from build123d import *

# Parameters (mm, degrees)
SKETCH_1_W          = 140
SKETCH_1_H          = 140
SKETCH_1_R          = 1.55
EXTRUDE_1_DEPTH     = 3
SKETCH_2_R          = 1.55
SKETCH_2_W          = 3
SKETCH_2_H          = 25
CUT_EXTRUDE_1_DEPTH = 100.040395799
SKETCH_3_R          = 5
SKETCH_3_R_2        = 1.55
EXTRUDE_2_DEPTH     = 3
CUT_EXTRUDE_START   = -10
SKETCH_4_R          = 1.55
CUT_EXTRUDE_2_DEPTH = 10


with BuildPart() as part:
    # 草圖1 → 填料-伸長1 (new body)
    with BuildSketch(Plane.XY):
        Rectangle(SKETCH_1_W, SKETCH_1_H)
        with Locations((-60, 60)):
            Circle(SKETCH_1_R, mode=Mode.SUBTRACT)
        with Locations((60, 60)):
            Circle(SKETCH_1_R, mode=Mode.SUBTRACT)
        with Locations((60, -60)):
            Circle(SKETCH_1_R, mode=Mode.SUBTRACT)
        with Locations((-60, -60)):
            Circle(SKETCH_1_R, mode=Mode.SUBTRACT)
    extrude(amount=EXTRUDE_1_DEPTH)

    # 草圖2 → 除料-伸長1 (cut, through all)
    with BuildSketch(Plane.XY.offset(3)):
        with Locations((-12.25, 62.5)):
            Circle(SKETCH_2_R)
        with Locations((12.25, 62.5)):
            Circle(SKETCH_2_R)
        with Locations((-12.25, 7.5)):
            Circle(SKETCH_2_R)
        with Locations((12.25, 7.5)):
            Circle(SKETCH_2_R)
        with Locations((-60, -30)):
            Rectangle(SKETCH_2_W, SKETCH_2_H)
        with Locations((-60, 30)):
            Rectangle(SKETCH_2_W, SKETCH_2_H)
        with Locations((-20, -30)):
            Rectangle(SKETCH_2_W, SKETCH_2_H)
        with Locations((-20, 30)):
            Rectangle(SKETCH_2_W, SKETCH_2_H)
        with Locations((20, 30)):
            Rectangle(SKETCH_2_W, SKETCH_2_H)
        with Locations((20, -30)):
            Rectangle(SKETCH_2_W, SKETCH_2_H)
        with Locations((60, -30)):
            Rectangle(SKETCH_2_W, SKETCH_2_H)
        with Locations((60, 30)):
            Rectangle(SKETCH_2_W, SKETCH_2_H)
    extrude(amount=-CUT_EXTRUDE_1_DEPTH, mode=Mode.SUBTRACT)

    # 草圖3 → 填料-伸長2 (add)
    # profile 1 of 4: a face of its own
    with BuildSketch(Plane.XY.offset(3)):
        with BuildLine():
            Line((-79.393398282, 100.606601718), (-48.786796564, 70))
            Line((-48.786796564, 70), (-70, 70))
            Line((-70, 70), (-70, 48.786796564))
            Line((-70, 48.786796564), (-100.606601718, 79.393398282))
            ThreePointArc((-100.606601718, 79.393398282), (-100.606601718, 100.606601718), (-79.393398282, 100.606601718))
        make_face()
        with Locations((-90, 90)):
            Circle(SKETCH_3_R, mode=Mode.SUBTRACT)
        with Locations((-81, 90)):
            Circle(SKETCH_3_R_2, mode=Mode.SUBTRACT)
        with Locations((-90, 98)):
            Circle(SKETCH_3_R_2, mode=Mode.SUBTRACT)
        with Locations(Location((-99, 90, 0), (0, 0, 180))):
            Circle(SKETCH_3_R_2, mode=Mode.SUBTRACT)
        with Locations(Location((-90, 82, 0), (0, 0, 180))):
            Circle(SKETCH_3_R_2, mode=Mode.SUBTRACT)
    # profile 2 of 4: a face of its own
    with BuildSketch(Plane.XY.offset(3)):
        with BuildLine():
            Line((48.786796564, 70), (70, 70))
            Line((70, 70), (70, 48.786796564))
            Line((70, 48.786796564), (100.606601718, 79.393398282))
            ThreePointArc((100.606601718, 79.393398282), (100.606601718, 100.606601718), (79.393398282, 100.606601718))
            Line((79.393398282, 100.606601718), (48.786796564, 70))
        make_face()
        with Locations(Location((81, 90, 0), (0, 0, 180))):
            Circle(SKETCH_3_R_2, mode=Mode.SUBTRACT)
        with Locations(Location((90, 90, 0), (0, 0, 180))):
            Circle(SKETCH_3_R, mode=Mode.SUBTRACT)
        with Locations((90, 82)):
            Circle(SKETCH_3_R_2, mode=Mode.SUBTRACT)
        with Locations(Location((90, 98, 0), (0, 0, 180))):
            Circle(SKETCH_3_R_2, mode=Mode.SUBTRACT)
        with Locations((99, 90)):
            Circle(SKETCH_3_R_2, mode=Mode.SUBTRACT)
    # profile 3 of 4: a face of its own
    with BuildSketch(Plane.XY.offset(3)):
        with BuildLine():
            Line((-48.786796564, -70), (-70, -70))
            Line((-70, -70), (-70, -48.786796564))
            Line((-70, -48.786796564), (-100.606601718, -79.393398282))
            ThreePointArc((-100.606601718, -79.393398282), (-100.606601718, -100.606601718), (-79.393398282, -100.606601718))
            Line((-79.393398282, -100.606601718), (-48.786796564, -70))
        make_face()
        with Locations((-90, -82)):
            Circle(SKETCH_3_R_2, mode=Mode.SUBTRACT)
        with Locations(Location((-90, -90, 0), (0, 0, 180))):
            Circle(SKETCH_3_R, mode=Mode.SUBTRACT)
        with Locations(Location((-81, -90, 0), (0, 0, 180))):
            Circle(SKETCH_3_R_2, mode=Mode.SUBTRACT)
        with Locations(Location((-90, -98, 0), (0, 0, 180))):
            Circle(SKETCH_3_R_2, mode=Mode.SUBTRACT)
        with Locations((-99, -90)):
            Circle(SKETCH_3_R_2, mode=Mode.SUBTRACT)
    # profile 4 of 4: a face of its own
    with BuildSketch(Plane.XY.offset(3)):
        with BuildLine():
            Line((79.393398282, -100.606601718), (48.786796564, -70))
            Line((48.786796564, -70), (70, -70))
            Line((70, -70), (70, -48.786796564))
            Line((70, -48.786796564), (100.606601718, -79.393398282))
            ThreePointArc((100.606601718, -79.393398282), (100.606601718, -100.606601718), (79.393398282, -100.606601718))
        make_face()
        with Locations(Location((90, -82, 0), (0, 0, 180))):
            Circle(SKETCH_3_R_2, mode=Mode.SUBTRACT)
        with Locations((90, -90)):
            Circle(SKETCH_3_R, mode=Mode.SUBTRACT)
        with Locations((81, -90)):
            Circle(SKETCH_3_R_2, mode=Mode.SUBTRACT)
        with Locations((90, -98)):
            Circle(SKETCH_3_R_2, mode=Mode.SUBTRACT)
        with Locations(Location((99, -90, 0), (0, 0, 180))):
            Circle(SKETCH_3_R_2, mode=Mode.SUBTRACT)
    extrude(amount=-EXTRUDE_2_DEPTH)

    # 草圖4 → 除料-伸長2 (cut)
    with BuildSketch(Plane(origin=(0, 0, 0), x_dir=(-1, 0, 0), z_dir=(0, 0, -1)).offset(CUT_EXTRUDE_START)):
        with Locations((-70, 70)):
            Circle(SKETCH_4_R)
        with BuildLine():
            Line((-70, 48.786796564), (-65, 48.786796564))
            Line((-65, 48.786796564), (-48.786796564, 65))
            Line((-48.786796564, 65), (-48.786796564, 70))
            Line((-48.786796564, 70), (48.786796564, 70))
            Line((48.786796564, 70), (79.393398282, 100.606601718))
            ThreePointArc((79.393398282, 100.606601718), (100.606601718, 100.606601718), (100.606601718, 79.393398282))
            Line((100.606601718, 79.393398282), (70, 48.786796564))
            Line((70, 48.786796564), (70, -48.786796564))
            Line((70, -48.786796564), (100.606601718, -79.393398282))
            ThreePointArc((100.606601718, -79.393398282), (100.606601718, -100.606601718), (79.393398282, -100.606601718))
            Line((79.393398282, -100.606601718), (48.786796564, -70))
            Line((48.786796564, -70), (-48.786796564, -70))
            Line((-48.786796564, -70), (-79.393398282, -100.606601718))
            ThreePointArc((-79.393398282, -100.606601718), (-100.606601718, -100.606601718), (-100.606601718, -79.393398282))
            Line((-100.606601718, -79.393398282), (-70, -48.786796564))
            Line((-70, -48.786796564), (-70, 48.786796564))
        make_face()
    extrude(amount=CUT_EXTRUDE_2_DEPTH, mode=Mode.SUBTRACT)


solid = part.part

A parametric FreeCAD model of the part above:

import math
import FreeCAD as App
import Part
import Sketcher

V = App.Vector

doc = App.newDocument("Part")
body = doc.addObject("PartDesign::Body", "Body")

# Sketch on XY plane
sketch1 = body.newObject("Sketcher::SketchObject", "Sketch")
sketch1.AttachmentSupport = (doc.getObject("XY_Plane"), [""])
sketch1.MapMode = "FlatFace"
sketch1.addGeometry(Part.LineSegment(V(-70, 70, 0), V(-70, -70, 0)), False)
sketch1.addGeometry(Part.LineSegment(V(-70, -70, 0), V(70, -70, 0)), False)
sketch1.addGeometry(Part.LineSegment(V(70, -70, 0), V(70, 70, 0)), False)
sketch1.addGeometry(Part.LineSegment(V(70, 70, 0), V(-70, 70, 0)), False)
sketch1.addGeometry(Part.Circle(V(-60, -60, 0), V(0, 0, 1), 1.55), False)
sketch1.addGeometry(Part.Circle(V(60, -60, 0), V(0, 0, 1), 1.55), False)
sketch1.addGeometry(Part.Circle(V(-60, 60, 0), V(0, 0, 1), 1.55), False)
sketch1.addGeometry(Part.Circle(V(60, 60, 0), V(0, 0, 1), 1.55), False)
sketch1.addConstraint(Sketcher.Constraint("Coincident", 0, 2, 1, 1))
sketch1.addConstraint(Sketcher.Constraint("Coincident", 1, 2, 2, 1))
sketch1.addConstraint(Sketcher.Constraint("Coincident", 2, 2, 3, 1))
sketch1.addConstraint(Sketcher.Constraint("Coincident", 3, 2, 0, 1))
sketch1.addConstraint(Sketcher.Constraint("Vertical", 0))
sketch1.addConstraint(Sketcher.Constraint("Horizontal", 1))
sketch1.addConstraint(Sketcher.Constraint("Vertical", 2))
sketch1.addConstraint(Sketcher.Constraint("Horizontal", 3))
sketch1.addConstraint(Sketcher.Constraint("Equal", 4, 5))
sketch1.addConstraint(Sketcher.Constraint("Equal", 5, 6))
sketch1.addConstraint(Sketcher.Constraint("Equal", 6, 7))
sketch1.addConstraint(Sketcher.Constraint("Symmetric", 5, 3, 6, 3, -1, 1))
sketch1.addConstraint(Sketcher.Constraint("Symmetric", 4, 3, 7, 3, -1, 1))
sketch1.addConstraint(Sketcher.Constraint("Symmetric", 0, 2, 2, 2, -1, 1))
sketch1.addConstraint(Sketcher.Constraint("Symmetric", 4, 3, 5, 3, -2))
sketch1.addConstraint(Sketcher.Constraint("Equal", 3, 0))
sketch1.addConstraint(Sketcher.Constraint("Diameter", 4, 3.1))
sketch1.addConstraint(Sketcher.Constraint("DistanceX", 1, 1, 1, 2, 140.0))
sketch1.addConstraint(Sketcher.Constraint("DistanceX", 4, 3, -1, 1, 60.0))
sketch1.addConstraint(Sketcher.Constraint("DistanceY", 4, 3, -1, 1, 60.0))
pad1 = body.newObject("PartDesign::Pad", "Pad")
pad1.Profile = sketch1
pad1.Length = 3

# Sketch on XY plane
sketch2 = body.newObject("Sketcher::SketchObject", "Sketch001")
sketch2.AttachmentSupport = (doc.getObject("XY_Plane"), [""])
sketch2.MapMode = "FlatFace"
sketch2.AttachmentOffset = App.Placement(V(0, 0, 3), App.Rotation())
sketch2.addGeometry(Part.Circle(V(-12.25, 62.5, 0), V(0, 0, 1), 1.55), False)
sketch2.addGeometry(Part.Circle(V(12.25, 62.5, 0), V(0, 0, 1), 1.55), False)
sketch2.addGeometry(Part.Circle(V(-12.25, 7.5, 0), V(0, 0, 1), 1.55), False)
sketch2.addGeometry(Part.Circle(V(12.25, 7.5, 0), V(0, 0, 1), 1.55), False)
sketch2.addGeometry(Part.LineSegment(V(-61.5, -17.5, 0), V(-61.5, -42.5, 0)), False)
sketch2.addGeometry(Part.LineSegment(V(-61.5, -42.5, 0), V(-58.5, -42.5, 0)), False)
sketch2.addGeometry(Part.LineSegment(V(-58.5, -42.5, 0), V(-58.5, -17.5, 0)), False)
sketch2.addGeometry(Part.LineSegment(V(-58.5, -17.5, 0), V(-61.5, -17.5, 0)), False)
sketch2.addGeometry(Part.LineSegment(V(-61.5, 42.5, 0), V(-61.5, 17.5, 0)), False)
sketch2.addGeometry(Part.LineSegment(V(-61.5, 17.5, 0), V(-58.5, 17.5, 0)), False)
sketch2.addGeometry(Part.LineSegment(V(-58.5, 17.5, 0), V(-58.5, 42.5, 0)), False)
sketch2.addGeometry(Part.LineSegment(V(-58.5, 42.5, 0), V(-61.5, 42.5, 0)), False)
sketch2.addGeometry(Part.LineSegment(V(-21.5, -17.5, 0), V(-21.5, -42.5, 0)), False)
sketch2.addGeometry(Part.LineSegment(V(-21.5, -42.5, 0), V(-18.5, -42.5, 0)), False)
sketch2.addGeometry(Part.LineSegment(V(-18.5, -42.5, 0), V(-18.5, -17.5, 0)), False)
sketch2.addGeometry(Part.LineSegment(V(-18.5, -17.5, 0), V(-21.5, -17.5, 0)), False)
sketch2.addGeometry(Part.LineSegment(V(-21.5, 42.5, 0), V(-21.5, 17.5, 0)), False)
sketch2.addGeometry(Part.LineSegment(V(-21.5, 17.5, 0), V(-18.5, 17.5, 0)), False)
sketch2.addGeometry(Part.LineSegment(V(-18.5, 17.5, 0), V(-18.5, 42.5, 0)), False)
sketch2.addGeometry(Part.LineSegment(V(-18.5, 42.5, 0), V(-21.5, 42.5, 0)), False)
sketch2.addGeometry(Part.LineSegment(V(18.5, 42.5, 0), V(18.5, 17.5, 0)), False)
sketch2.addGeometry(Part.LineSegment(V(18.5, 17.5, 0), V(21.5, 17.5, 0)), False)
sketch2.addGeometry(Part.LineSegment(V(21.5, 17.5, 0), V(21.5, 42.5, 0)), False)
sketch2.addGeometry(Part.LineSegment(V(21.5, 42.5, 0), V(18.5, 42.5, 0)), False)
sketch2.addGeometry(Part.LineSegment(V(18.5, -17.5, 0), V(18.5, -42.5, 0)), False)
sketch2.addGeometry(Part.LineSegment(V(18.5, -42.5, 0), V(21.5, -42.5, 0)), False)
sketch2.addGeometry(Part.LineSegment(V(21.5, -42.5, 0), V(21.5, -17.5, 0)), False)
sketch2.addGeometry(Part.LineSegment(V(21.5, -17.5, 0), V(18.5, -17.5, 0)), False)
sketch2.addGeometry(Part.LineSegment(V(58.5, -17.5, 0), V(58.5, -42.5, 0)), False)
sketch2.addGeometry(Part.LineSegment(V(58.5, -42.5, 0), V(61.5, -42.5, 0)), False)
sketch2.addGeometry(Part.LineSegment(V(61.5, -42.5, 0), V(61.5, -17.5, 0)), False)
sketch2.addGeometry(Part.LineSegment(V(61.5, -17.5, 0), V(58.5, -17.5, 0)), False)
sketch2.addGeometry(Part.LineSegment(V(58.5, 42.5, 0), V(58.5, 17.5, 0)), False)
sketch2.addGeometry(Part.LineSegment(V(58.5, 17.5, 0), V(61.5, 17.5, 0)), False)
sketch2.addGeometry(Part.LineSegment(V(61.5, 17.5, 0), V(61.5, 42.5, 0)), False)
sketch2.addGeometry(Part.LineSegment(V(61.5, 42.5, 0), V(58.5, 42.5, 0)), False)
sketch2.addConstraint(Sketcher.Constraint("Coincident", 4, 2, 5, 1))
sketch2.addConstraint(Sketcher.Constraint("Coincident", 5, 2, 6, 1))
sketch2.addConstraint(Sketcher.Constraint("Coincident", 6, 2, 7, 1))
sketch2.addConstraint(Sketcher.Constraint("Coincident", 7, 2, 4, 1))
sketch2.addConstraint(Sketcher.Constraint("Coincident", 8, 2, 9, 1))
sketch2.addConstraint(Sketcher.Constraint("Coincident", 9, 2, 10, 1))
sketch2.addConstraint(Sketcher.Constraint("Coincident", 10, 2, 11, 1))
sketch2.addConstraint(Sketcher.Constraint("Coincident", 11, 2, 8, 1))
sketch2.addConstraint(Sketcher.Constraint("Coincident", 12, 2, 13, 1))
sketch2.addConstraint(Sketcher.Constraint("Coincident", 13, 2, 14, 1))
sketch2.addConstraint(Sketcher.Constraint("Coincident", 14, 2, 15, 1))
sketch2.addConstraint(Sketcher.Constraint("Coincident", 15, 2, 12, 1))
sketch2.addConstraint(Sketcher.Constraint("Coincident", 16, 2, 17, 1))
sketch2.addConstraint(Sketcher.Constraint("Coincident", 17, 2, 18, 1))
sketch2.addConstraint(Sketcher.Constraint("Coincident", 18, 2, 19, 1))
sketch2.addConstraint(Sketcher.Constraint("Coincident", 19, 2, 16, 1))
sketch2.addConstraint(Sketcher.Constraint("Coincident", 20, 2, 21, 1))
sketch2.addConstraint(Sketcher.Constraint("Coincident", 21, 2, 22, 1))
sketch2.addConstraint(Sketcher.Constraint("Coincident", 22, 2, 23, 1))
sketch2.addConstraint(Sketcher.Constraint("Coincident", 23, 2, 20, 1))
sketch2.addConstraint(Sketcher.Constraint("Coincident", 24, 2, 25, 1))
sketch2.addConstraint(Sketcher.Constraint("Coincident", 25, 2, 26, 1))
sketch2.addConstraint(Sketcher.Constraint("Coincident", 26, 2, 27, 1))
sketch2.addConstraint(Sketcher.Constraint("Coincident", 27, 2, 24, 1))
sketch2.addConstraint(Sketcher.Constraint("Coincident", 28, 2, 29, 1))
sketch2.addConstraint(Sketcher.Constraint("Coincident", 29, 2, 30, 1))
sketch2.addConstraint(Sketcher.Constraint("Coincident", 30, 2, 31, 1))
sketch2.addConstraint(Sketcher.Constraint("Coincident", 31, 2, 28, 1))
sketch2.addConstraint(Sketcher.Constraint("Coincident", 32, 2, 33, 1))
sketch2.addConstraint(Sketcher.Constraint("Coincident", 33, 2, 34, 1))
sketch2.addConstraint(Sketcher.Constraint("Coincident", 34, 2, 35, 1))
sketch2.addConstraint(Sketcher.Constraint("Coincident", 35, 2, 32, 1))
sketch2.addConstraint(Sketcher.Constraint("Vertical", 4))
sketch2.addConstraint(Sketcher.Constraint("Horizontal", 5))
sketch2.addConstraint(Sketcher.Constraint("Vertical", 6))
sketch2.addConstraint(Sketcher.Constraint("Horizontal", 7))
sketch2.addConstraint(Sketcher.Constraint("Vertical", 8))
sketch2.addConstraint(Sketcher.Constraint("Horizontal", 9))
sketch2.addConstraint(Sketcher.Constraint("Vertical", 10))
sketch2.addConstraint(Sketcher.Constraint("Horizontal", 11))
sketch2.addConstraint(Sketcher.Constraint("Vertical", 12))
sketch2.addConstraint(Sketcher.Constraint("Horizontal", 13))
sketch2.addConstraint(Sketcher.Constraint("Vertical", 14))
sketch2.addConstraint(Sketcher.Constraint("Horizontal", 15))
sketch2.addConstraint(Sketcher.Constraint("Vertical", 16))
sketch2.addConstraint(Sketcher.Constraint("Horizontal", 17))
sketch2.addConstraint(Sketcher.Constraint("Vertical", 18))
sketch2.addConstraint(Sketcher.Constraint("Horizontal", 19))
sketch2.addConstraint(Sketcher.Constraint("Vertical", 20))
sketch2.addConstraint(Sketcher.Constraint("Horizontal", 21))
sketch2.addConstraint(Sketcher.Constraint("Vertical", 22))
sketch2.addConstraint(Sketcher.Constraint("Horizontal", 23))
sketch2.addConstraint(Sketcher.Constraint("Vertical", 24))
sketch2.addConstraint(Sketcher.Constraint("Horizontal", 25))
sketch2.addConstraint(Sketcher.Constraint("Vertical", 26))
sketch2.addConstraint(Sketcher.Constraint("Horizontal", 27))
sketch2.addConstraint(Sketcher.Constraint("Vertical", 28))
sketch2.addConstraint(Sketcher.Constraint("Horizontal", 29))
sketch2.addConstraint(Sketcher.Constraint("Vertical", 30))
sketch2.addConstraint(Sketcher.Constraint("Horizontal", 31))
sketch2.addConstraint(Sketcher.Constraint("Vertical", 32))
sketch2.addConstraint(Sketcher.Constraint("Horizontal", 33))
sketch2.addConstraint(Sketcher.Constraint("Vertical", 34))
sketch2.addConstraint(Sketcher.Constraint("Horizontal", 35))
sketch2.addConstraint(Sketcher.Constraint("Equal", 0, 1))
sketch2.addConstraint(Sketcher.Constraint("Equal", 1, 2))
sketch2.addConstraint(Sketcher.Constraint("Equal", 2, 3))
sketch2.addConstraint(Sketcher.Constraint("Symmetric", 14, 2, 20, 2, -1, 1))
sketch2.addConstraint(Sketcher.Constraint("Symmetric", 12, 2, 22, 2, -1, 1))
sketch2.addConstraint(Sketcher.Constraint("Symmetric", 18, 2, 24, 2, -1, 1))
sketch2.addConstraint(Sketcher.Constraint("Symmetric", 16, 2, 26, 2, -1, 1))
sketch2.addConstraint(Sketcher.Constraint("Symmetric", 10, 2, 28, 2, -1, 1))
sketch2.addConstraint(Sketcher.Constraint("Symmetric", 8, 2, 30, 2, -1, 1))
sketch2.addConstraint(Sketcher.Constraint("Symmetric", 6, 2, 32, 2, -1, 1))
sketch2.addConstraint(Sketcher.Constraint("Symmetric", 4, 2, 34, 2, -1, 1))
sketch2.addConstraint(Sketcher.Constraint("Symmetric", 0, 3, 1, 3, -2))
sketch2.addConstraint(Sketcher.Constraint("Symmetric", 2, 3, 3, 3, -2))
sketch2.addConstraint(Sketcher.Constraint("Symmetric", 17, 2, 20, 2, -2))
sketch2.addConstraint(Sketcher.Constraint("Symmetric", 19, 2, 22, 2, -2))
sketch2.addConstraint(Sketcher.Constraint("Symmetric", 5, 2, 28, 2, -2))
sketch2.addConstraint(Sketcher.Constraint("Symmetric", 7, 2, 30, 2, -2))
sketch2.addConstraint(Sketcher.Constraint("Horizontal", 5, 2, 12, 2))
sketch2.addConstraint(Sketcher.Constraint("Horizontal", 7, 2, 14, 2))
sketch2.addConstraint(Sketcher.Constraint("Vertical", 0, 3, 2, 3))
sketch2.addConstraint(Sketcher.Constraint("Equal", 11, 13))
sketch2.addConstraint(Sketcher.Constraint("Diameter", 0, 3.1))
sketch2.addConstraint(Sketcher.Constraint("DistanceX", 5, 1, 5, 2, 3.0))
sketch2.addConstraint(Sketcher.Constraint("DistanceY", 4, 2, 4, 1, 25.0))
sketch2.addConstraint(Sketcher.Constraint("DistanceY", 2, 3, 0, 3, 55.0))
sketch2.addConstraint(Sketcher.Constraint("DistanceY", 4, 2, 2, 3, 50.0))
sketch2.addConstraint(Sketcher.Constraint("DistanceY", 7, 2, 8, 2, 35.0))
sketch2.addConstraint(Sketcher.Constraint("DistanceX", 5, 2, 12, 2, 37.0))
sketch2.addConstraint(Sketcher.Constraint("DistanceX", 17, 2, 20, 2, 37.0))
sketch2.addConstraint(Sketcher.Constraint("DistanceX", 0, 3, 1, 3, 24.5))
pocket1 = body.newObject("PartDesign::Pocket", "Pocket")
pocket1.Profile = sketch2
pocket1.Type = "ThroughAll"

# Sketch on XY plane
sketch3 = body.newObject("Sketcher::SketchObject", "Sketch002")
sketch3.AttachmentSupport = (doc.getObject("XY_Plane"), [""])
sketch3.MapMode = "FlatFace"
sketch3.AttachmentOffset = App.Placement(V(0, 0, 3), App.Rotation())
sketch3.addGeometry(Part.LineSegment(V(-48.786797, 70, 0), V(-79.393398, 100.606602, 0)), False)
sketch3.addGeometry(Part.ArcOfCircle(Part.Circle(V(-90, 90, 0), V(0, 0, 1), 15), math.radians(45), math.radians(225)), False)
sketch3.addGeometry(Part.LineSegment(V(-100.606602, 79.393398, 0), V(-70, 48.786797, 0)), False)
sketch3.addGeometry(Part.LineSegment(V(-70, 48.786797, 0), V(-70, 70, 0)), False)
sketch3.addGeometry(Part.LineSegment(V(-70, 70, 0), V(-48.786797, 70, 0)), False)
sketch3.addGeometry(Part.Circle(V(-90, 82, 0), V(0, 0, 1), 1.55), False)
sketch3.addGeometry(Part.Circle(V(-81, 90, 0), V(0, 0, 1), 1.55), False)
sketch3.addGeometry(Part.Circle(V(-90, 90, 0), V(0, 0, 1), 5), False)
sketch3.addGeometry(Part.Circle(V(-99, 90, 0), V(0, 0, 1), 1.55), False)
sketch3.addGeometry(Part.Circle(V(-90, 98, 0), V(0, 0, 1), 1.55), False)
sketch3.addGeometry(Part.LineSegment(V(48.786797, 70, 0), V(70, 70, 0)), False)
sketch3.addGeometry(Part.LineSegment(V(70, 70, 0), V(70, 48.786797, 0)), False)
sketch3.addGeometry(Part.LineSegment(V(70, 48.786797, 0), V(100.606602, 79.393398, 0)), False)
sketch3.addGeometry(Part.ArcOfCircle(Part.Circle(V(90, 90, 0), V(0, 0, 1), 15), math.radians(-45), math.radians(135)), False)
sketch3.addGeometry(Part.LineSegment(V(79.393398, 100.606602, 0), V(48.786797, 70, 0)), False)
sketch3.addGeometry(Part.Circle(V(90, 82, 0), V(0, 0, 1), 1.55), False)
sketch3.addGeometry(Part.Circle(V(81, 90, 0), V(0, 0, 1), 1.55), False)
sketch3.addGeometry(Part.Circle(V(90, 90, 0), V(0, 0, 1), 5), False)
sketch3.addGeometry(Part.Circle(V(99, 90, 0), V(0, 0, 1), 1.55), False)
sketch3.addGeometry(Part.Circle(V(90, 98, 0), V(0, 0, 1), 1.55), False)
sketch3.addGeometry(Part.LineSegment(V(-48.786797, -70, 0), V(-70, -70, 0)), False)
sketch3.addGeometry(Part.LineSegment(V(-70, -70, 0), V(-70, -48.786797, 0)), False)
sketch3.addGeometry(Part.LineSegment(V(-70, -48.786797, 0), V(-100.606602, -79.393398, 0)), False)
sketch3.addGeometry(Part.ArcOfCircle(Part.Circle(V(-90, -90, 0), V(0, 0, 1), 15), math.radians(135), math.radians(315)), False)
sketch3.addGeometry(Part.LineSegment(V(-79.393398, -100.606602, 0), V(-48.786797, -70, 0)), False)
sketch3.addGeometry(Part.Circle(V(-90, -98, 0), V(0, 0, 1), 1.55), False)
sketch3.addGeometry(Part.Circle(V(-99, -90, 0), V(0, 0, 1), 1.55), False)
sketch3.addGeometry(Part.Circle(V(-90, -90, 0), V(0, 0, 1), 5), False)
sketch3.addGeometry(Part.Circle(V(-81, -90, 0), V(0, 0, 1), 1.55), False)
sketch3.addGeometry(Part.Circle(V(-90, -82, 0), V(0, 0, 1), 1.55), False)
sketch3.addGeometry(Part.LineSegment(V(48.786797, -70, 0), V(79.393398, -100.606602, 0)), False)
sketch3.addGeometry(Part.ArcOfCircle(Part.Circle(V(90, -90, 0), V(0, 0, 1), 15), math.radians(-135), math.radians(45)), False)
sketch3.addGeometry(Part.LineSegment(V(100.606602, -79.393398, 0), V(70, -48.786797, 0)), False)
sketch3.addGeometry(Part.LineSegment(V(70, -48.786797, 0), V(70, -70, 0)), False)
sketch3.addGeometry(Part.LineSegment(V(70, -70, 0), V(48.786797, -70, 0)), False)
sketch3.addGeometry(Part.Circle(V(90, -98, 0), V(0, 0, 1), 1.55), False)
sketch3.addGeometry(Part.Circle(V(99, -90, 0), V(0, 0, 1), 1.55), False)
sketch3.addGeometry(Part.Circle(V(90, -90, 0), V(0, 0, 1), 5), False)
sketch3.addGeometry(Part.Circle(V(81, -90, 0), V(0, 0, 1), 1.55), False)
sketch3.addGeometry(Part.Circle(V(90, -82, 0), V(0, 0, 1), 1.55), False)
sketch3.addConstraint(Sketcher.Constraint("Tangent", 0, 2, 1, 1))
sketch3.addConstraint(Sketcher.Constraint("Tangent", 1, 2, 2, 1))
sketch3.addConstraint(Sketcher.Constraint("Coincident", 2, 2, 3, 1))
sketch3.addConstraint(Sketcher.Constraint("Coincident", 3, 2, 4, 1))
sketch3.addConstraint(Sketcher.Constraint("Coincident", 4, 2, 0, 1))
sketch3.addConstraint(Sketcher.Constraint("Coincident", 10, 2, 11, 1))
sketch3.addConstraint(Sketcher.Constraint("Coincident", 11, 2, 12, 1))
sketch3.addConstraint(Sketcher.Constraint("Tangent", 12, 2, 13, 1))
sketch3.addConstraint(Sketcher.Constraint("Tangent", 13, 2, 14, 1))
sketch3.addConstraint(Sketcher.Constraint("Coincident", 14, 2, 10, 1))
sketch3.addConstraint(Sketcher.Constraint("Coincident", 20, 2, 21, 1))
sketch3.addConstraint(Sketcher.Constraint("Coincident", 21, 2, 22, 1))
sketch3.addConstraint(Sketcher.Constraint("Tangent", 22, 2, 23, 1))
sketch3.addConstraint(Sketcher.Constraint("Tangent", 23, 2, 24, 1))
sketch3.addConstraint(Sketcher.Constraint("Coincident", 24, 2, 20, 1))
sketch3.addConstraint(Sketcher.Constraint("Tangent", 30, 2, 31, 1))
sketch3.addConstraint(Sketcher.Constraint("Tangent", 31, 2, 32, 1))
sketch3.addConstraint(Sketcher.Constraint("Coincident", 32, 2, 33, 1))
sketch3.addConstraint(Sketcher.Constraint("Coincident", 33, 2, 34, 1))
sketch3.addConstraint(Sketcher.Constraint("Coincident", 34, 2, 30, 1))
sketch3.addConstraint(Sketcher.Constraint("Vertical", 3))
sketch3.addConstraint(Sketcher.Constraint("Horizontal", 4))
sketch3.addConstraint(Sketcher.Constraint("Horizontal", 10))
sketch3.addConstraint(Sketcher.Constraint("Vertical", 11))
sketch3.addConstraint(Sketcher.Constraint("Horizontal", 20))
sketch3.addConstraint(Sketcher.Constraint("Vertical", 21))
sketch3.addConstraint(Sketcher.Constraint("Vertical", 33))
sketch3.addConstraint(Sketcher.Constraint("Horizontal", 34))
sketch3.addConstraint(Sketcher.Constraint("Coincident", 7, 3, 1, 3))
sketch3.addConstraint(Sketcher.Constraint("Coincident", 17, 3, 13, 3))
sketch3.addConstraint(Sketcher.Constraint("Coincident", 27, 3, 23, 3))
sketch3.addConstraint(Sketcher.Constraint("Coincident", 37, 3, 31, 3))
sketch3.addConstraint(Sketcher.Constraint("Equal", 5, 6))
sketch3.addConstraint(Sketcher.Constraint("Equal", 6, 8))
sketch3.addConstraint(Sketcher.Constraint("Equal", 8, 9))
sketch3.addConstraint(Sketcher.Constraint("Equal", 1, 13))
sketch3.addConstraint(Sketcher.Constraint("Equal", 9, 15))
sketch3.addConstraint(Sketcher.Constraint("Equal", 15, 16))
sketch3.addConstraint(Sketcher.Constraint("Equal", 7, 17))
sketch3.addConstraint(Sketcher.Constraint("Equal", 16, 18))
sketch3.addConstraint(Sketcher.Constraint("Equal", 18, 19))
sketch3.addConstraint(Sketcher.Constraint("Equal", 13, 23))
sketch3.addConstraint(Sketcher.Constraint("Equal", 19, 25))
sketch3.addConstraint(Sketcher.Constraint("Equal", 25, 26))
sketch3.addConstraint(Sketcher.Constraint("Equal", 17, 27))
sketch3.addConstraint(Sketcher.Constraint("Equal", 26, 28))
sketch3.addConstraint(Sketcher.Constraint("Equal", 28, 29))
sketch3.addConstraint(Sketcher.Constraint("Equal", 23, 31))
sketch3.addConstraint(Sketcher.Constraint("Equal", 29, 35))
sketch3.addConstraint(Sketcher.Constraint("Equal", 35, 36))
sketch3.addConstraint(Sketcher.Constraint("Equal", 27, 37))
sketch3.addConstraint(Sketcher.Constraint("Equal", 36, 38))
sketch3.addConstraint(Sketcher.Constraint("Equal", 38, 39))
sketch3.addConstraint(Sketcher.Constraint("Symmetric", 13, 3, 23, 3, -1, 1))
sketch3.addConstraint(Sketcher.Constraint("Symmetric", 19, 3, 25, 3, -1, 1))
sketch3.addConstraint(Sketcher.Constraint("Symmetric", 18, 3, 26, 3, -1, 1))
sketch3.addConstraint(Sketcher.Constraint("Symmetric", 16, 3, 28, 3, -1, 1))
sketch3.addConstraint(Sketcher.Constraint("Symmetric", 15, 3, 29, 3, -1, 1))
sketch3.addConstraint(Sketcher.Constraint("Symmetric", 1, 3, 31, 3, -1, 1))
sketch3.addConstraint(Sketcher.Constraint("Symmetric", 9, 3, 35, 3, -1, 1))
sketch3.addConstraint(Sketcher.Constraint("Symmetric", 8, 3, 36, 3, -1, 1))
sketch3.addConstraint(Sketcher.Constraint("Symmetric", 6, 3, 38, 3, -1, 1))
sketch3.addConstraint(Sketcher.Constraint("Symmetric", 5, 3, 39, 3, -1, 1))
sketch3.addConstraint(Sketcher.Constraint("Symmetric", 10, 2, 20, 2, -1, 1))
sketch3.addConstraint(Sketcher.Constraint("Symmetric", 2, 2, 32, 2, -1, 1))
sketch3.addConstraint(Sketcher.Constraint("Symmetric", 4, 2, 34, 2, -1, 1))
sketch3.addConstraint(Sketcher.Constraint("Symmetric", 1, 3, 13, 3, -2))
sketch3.addConstraint(Sketcher.Constraint("Symmetric", 5, 3, 15, 3, -2))
sketch3.addConstraint(Sketcher.Constraint("Symmetric", 6, 3, 16, 3, -2))
sketch3.addConstraint(Sketcher.Constraint("Symmetric", 8, 3, 18, 3, -2))
sketch3.addConstraint(Sketcher.Constraint("Symmetric", 9, 3, 19, 3, -2))
sketch3.addConstraint(Sketcher.Constraint("Symmetric", 3, 2, 10, 2, -2))
sketch3.addConstraint(Sketcher.Constraint("Parallel", 0, 2))
sketch3.addConstraint(Sketcher.Constraint("Perpendicular", 2, 12))
sketch3.addConstraint(Sketcher.Constraint("Parallel", 12, 14))
sketch3.addConstraint(Sketcher.Constraint("Parallel", 14, 22))
sketch3.addConstraint(Sketcher.Constraint("Parallel", 22, 24))
sketch3.addConstraint(Sketcher.Constraint("Horizontal", 1, 3, 6, 3))
sketch3.addConstraint(Sketcher.Constraint("Horizontal", 7, 3, 8, 3))
sketch3.addConstraint(Sketcher.Constraint("Horizontal", 2, 2, 11, 2))
sketch3.addConstraint(Sketcher.Constraint("Vertical", 1, 3, 5, 3))
sketch3.addConstraint(Sketcher.Constraint("Vertical", 7, 3, 9, 3))
sketch3.addConstraint(Sketcher.Constraint("Equal", 34, 3))
sketch3.addConstraint(Sketcher.Constraint("Diameter", 7, 10.0))
sketch3.addConstraint(Sketcher.Constraint("Radius", 1, 15.0))
sketch3.addConstraint(Sketcher.Constraint("Diameter", 5, 3.1))
sketch3.addConstraint(Sketcher.Constraint("DistanceX", 1, 3, -1, 1, 90.0))
sketch3.addConstraint(Sketcher.Constraint("DistanceY", -1, 1, 1, 3, 90.0))
sketch3.addConstraint(Sketcher.Constraint("DistanceY", -1, 1, 5, 3, 82.0))
sketch3.addConstraint(Sketcher.Constraint("DistanceX", 6, 3, -1, 1, 81.0))
sketch3.addConstraint(Sketcher.Constraint("DistanceX", 8, 3, -1, 1, 99.0))
sketch3.addConstraint(Sketcher.Constraint("DistanceY", -1, 1, 9, 3, 98.0))
sketch3.addConstraint(Sketcher.Constraint("DistanceX", 2, 2, -1, 1, 70.0))
pad2 = body.newObject("PartDesign::Pad", "Pad001")
pad2.Profile = sketch3
pad2.Length = 3
pad2.Reversed = True

# Sketch on XY plane
sketch4 = body.newObject("Sketcher::SketchObject", "Sketch003")
sketch4.AttachmentSupport = (doc.getObject("XY_Plane"), [""])
sketch4.MapMode = "FlatFace"
sketch4.AttachmentOffset = App.Placement(V(0, 0, 10), App.Rotation())
sketch4.addGeometry(Part.Circle(V(70, 70, 0), V(0, 0, 1), 1.55), False)
sketch4.addGeometry(Part.LineSegment(V(65, 48.786797, 0), V(70, 48.786797, 0)), False)
sketch4.addGeometry(Part.LineSegment(V(70, 48.786797, 0), V(70, -48.786797, 0)), False)
sketch4.addGeometry(Part.LineSegment(V(70, -48.786797, 0), V(100.606602, -79.393398, 0)), False)
sketch4.addGeometry(Part.ArcOfCircle(Part.Circle(V(90, -90, 0), V(0, 0, 1), 15), math.radians(-135), math.radians(45)), False)
sketch4.addGeometry(Part.LineSegment(V(79.393398, -100.606602, 0), V(48.786797, -70, 0)), False)
sketch4.addGeometry(Part.LineSegment(V(48.786797, -70, 0), V(-48.786797, -70, 0)), False)
sketch4.addGeometry(Part.LineSegment(V(-48.786797, -70, 0), V(-79.393398, -100.606602, 0)), False)
sketch4.addGeometry(Part.ArcOfCircle(Part.Circle(V(-90, -90, 0), V(0, 0, 1), 15), math.radians(135), math.radians(315)), False)
sketch4.addGeometry(Part.LineSegment(V(-100.606602, -79.393398, 0), V(-70, -48.786797, 0)), False)
sketch4.addGeometry(Part.LineSegment(V(-70, -48.786797, 0), V(-70, 48.786797, 0)), False)
sketch4.addGeometry(Part.LineSegment(V(-70, 48.786797, 0), V(-100.606602, 79.393398, 0)), False)
sketch4.addGeometry(Part.ArcOfCircle(Part.Circle(V(-90, 90, 0), V(0, 0, 1), 15), math.radians(45), math.radians(225)), False)
sketch4.addGeometry(Part.LineSegment(V(-79.393398, 100.606602, 0), V(-48.786797, 70, 0)), False)
sketch4.addGeometry(Part.LineSegment(V(-48.786797, 70, 0), V(48.786797, 70, 0)), False)
sketch4.addGeometry(Part.LineSegment(V(48.786797, 70, 0), V(48.786797, 65, 0)), False)
sketch4.addGeometry(Part.LineSegment(V(48.786797, 65, 0), V(65, 48.786797, 0)), False)
sketch4.addConstraint(Sketcher.Constraint("Coincident", 1, 2, 2, 1))
sketch4.addConstraint(Sketcher.Constraint("Coincident", 2, 2, 3, 1))
sketch4.addConstraint(Sketcher.Constraint("Tangent", 3, 2, 4, 2))
sketch4.addConstraint(Sketcher.Constraint("Tangent", 4, 1, 5, 1))
sketch4.addConstraint(Sketcher.Constraint("Coincident", 5, 2, 6, 1))
sketch4.addConstraint(Sketcher.Constraint("Coincident", 6, 2, 7, 1))
sketch4.addConstraint(Sketcher.Constraint("Tangent", 7, 2, 8, 2))
sketch4.addConstraint(Sketcher.Constraint("Tangent", 8, 1, 9, 1))
sketch4.addConstraint(Sketcher.Constraint("Coincident", 9, 2, 10, 1))
sketch4.addConstraint(Sketcher.Constraint("Coincident", 10, 2, 11, 1))
sketch4.addConstraint(Sketcher.Constraint("Tangent", 11, 2, 12, 2))
sketch4.addConstraint(Sketcher.Constraint("Tangent", 12, 1, 13, 1))
sketch4.addConstraint(Sketcher.Constraint("Coincident", 13, 2, 14, 1))
sketch4.addConstraint(Sketcher.Constraint("Coincident", 14, 2, 15, 1))
sketch4.addConstraint(Sketcher.Constraint("Coincident", 15, 2, 16, 1))
sketch4.addConstraint(Sketcher.Constraint("Coincident", 16, 2, 1, 1))
sketch4.addConstraint(Sketcher.Constraint("Horizontal", 1))
sketch4.addConstraint(Sketcher.Constraint("Vertical", 2))
sketch4.addConstraint(Sketcher.Constraint("Horizontal", 6))
sketch4.addConstraint(Sketcher.Constraint("Vertical", 10))
sketch4.addConstraint(Sketcher.Constraint("Horizontal", 14))
sketch4.addConstraint(Sketcher.Constraint("Vertical", 15))
sketch4.addConstraint(Sketcher.Constraint("Equal", 4, 8))
sketch4.addConstraint(Sketcher.Constraint("Equal", 8, 12))
sketch4.addConstraint(Sketcher.Constraint("Symmetric", 4, 3, 12, 3, -1, 1))
sketch4.addConstraint(Sketcher.Constraint("Symmetric", 1, 2, 9, 2, -1, 1))
sketch4.addConstraint(Sketcher.Constraint("Symmetric", 5, 2, 13, 2, -1, 1))
sketch4.addConstraint(Sketcher.Constraint("Symmetric", 4, 3, 8, 3, -2))
sketch4.addConstraint(Sketcher.Constraint("Parallel", 3, 5))
sketch4.addConstraint(Sketcher.Constraint("Perpendicular", 5, 7))
sketch4.addConstraint(Sketcher.Constraint("Parallel", 7, 9))
sketch4.addConstraint(Sketcher.Constraint("Perpendicular", 9, 11))
sketch4.addConstraint(Sketcher.Constraint("Parallel", 13, 16))
sketch4.addConstraint(Sketcher.Constraint("Horizontal", 4, 1, 7, 2))
sketch4.addConstraint(Sketcher.Constraint("Horizontal", 0, 3, 13, 2))
sketch4.addConstraint(Sketcher.Constraint("Vertical", 0, 3, 1, 2))
sketch4.addConstraint(Sketcher.Constraint("Vertical", 5, 2, 14, 2))
sketch4.addConstraint(Sketcher.Constraint("Equal", 14, 2))
sketch4.addConstraint(Sketcher.Constraint("Equal", 1, 15))
sketch4.addConstraint(Sketcher.Constraint("Radius", 4, 15.0))
sketch4.addConstraint(Sketcher.Constraint("Diameter", 0, 3.1))
sketch4.addConstraint(Sketcher.Constraint("DistanceX", 1, 1, 1, 2, 5.0))
sketch4.addConstraint(Sketcher.Constraint("DistanceX", -1, 1, 0, 3, 70.0))
sketch4.addConstraint(Sketcher.Constraint("DistanceX", -1, 1, 4, 3, 90.0))
pocket2 = body.newObject("PartDesign::Pocket", "Pocket001")
pocket2.Profile = sketch4
pocket2.Length = 10

doc.recompute()
